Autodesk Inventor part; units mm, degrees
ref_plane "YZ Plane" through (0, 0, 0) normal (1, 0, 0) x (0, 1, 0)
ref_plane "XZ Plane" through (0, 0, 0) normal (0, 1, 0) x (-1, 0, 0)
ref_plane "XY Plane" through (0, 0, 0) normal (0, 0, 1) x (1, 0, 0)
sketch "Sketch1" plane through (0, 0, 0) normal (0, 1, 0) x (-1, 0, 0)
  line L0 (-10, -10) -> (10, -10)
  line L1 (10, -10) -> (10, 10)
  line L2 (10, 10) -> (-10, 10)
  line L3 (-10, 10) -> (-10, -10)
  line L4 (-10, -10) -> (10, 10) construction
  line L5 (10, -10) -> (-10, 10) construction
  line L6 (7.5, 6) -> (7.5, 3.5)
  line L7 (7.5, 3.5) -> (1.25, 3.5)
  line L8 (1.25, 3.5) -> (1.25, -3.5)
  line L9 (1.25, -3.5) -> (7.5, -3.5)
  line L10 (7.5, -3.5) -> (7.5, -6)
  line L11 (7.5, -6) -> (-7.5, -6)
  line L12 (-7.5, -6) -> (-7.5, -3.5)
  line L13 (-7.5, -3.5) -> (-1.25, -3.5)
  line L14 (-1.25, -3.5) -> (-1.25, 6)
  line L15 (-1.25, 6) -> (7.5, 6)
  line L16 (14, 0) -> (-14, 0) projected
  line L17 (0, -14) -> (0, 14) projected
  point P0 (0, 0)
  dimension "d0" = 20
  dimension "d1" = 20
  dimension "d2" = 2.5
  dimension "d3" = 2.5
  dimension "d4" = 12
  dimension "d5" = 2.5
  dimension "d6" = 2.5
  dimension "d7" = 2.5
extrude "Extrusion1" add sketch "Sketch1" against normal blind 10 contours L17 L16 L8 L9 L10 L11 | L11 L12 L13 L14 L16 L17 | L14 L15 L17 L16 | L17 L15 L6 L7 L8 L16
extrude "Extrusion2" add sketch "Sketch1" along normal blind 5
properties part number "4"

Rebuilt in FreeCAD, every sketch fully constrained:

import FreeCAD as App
import Part
import Sketcher
from FreeCAD import Vector

doc = App.newDocument("Part")
params = doc.addObject("Spreadsheet::Sheet", "Params")
for row, (alias, value) in enumerate([
    ("sketch1_height", "2.5 mm"),
    ("sketch1_width", "15 mm"),
    ("pad1_length", "10 mm"),
    ("sketch2_width", "20 mm"),
    ("pad2_length", "5 mm"),
], start=1):
    params.set(f"A{row}", alias)
    params.set(f"B{row}", "=" + value)
    params.setAlias(f"B{row}", alias)

body = doc.addObject("PartDesign::Body", "Body")

sketch1 = doc.addObject("Sketcher::SketchObject", "Sketch")
body.addObject(sketch1)
sketch1.AttachmentSupport = (doc.XZ_Plane, [""])
sketch1.MapMode = "FlatFace"
sketch1.addGeometry([
    Part.LineSegment(Vector(-1.2, -3.5, 0), Vector(-1.2, 3.5, 0)),
    Part.LineSegment(Vector(-1.2, 3.5, 0), Vector(-7.5, 3.5, 0)),
    Part.LineSegment(Vector(-7.5, 3.5, 0), Vector(-7.5, 6, 0)),
    Part.LineSegment(Vector(-7.5, 6, 0), Vector(1.2, 6, 0)),
    Part.LineSegment(Vector(1.2, 6, 0), Vector(1.2, -3.5, 0)),
    Part.LineSegment(Vector(1.2, -3.5, 0), Vector(7.5, -3.5, 0)),
    Part.LineSegment(Vector(7.5, -3.5, 0), Vector(7.5, -6, 0)),
    Part.LineSegment(Vector(7.5, -6, 0), Vector(-7.5, -6, 0)),
    Part.LineSegment(Vector(-7.5, -6, 0), Vector(-7.5, -3.5, 0)),
    Part.LineSegment(Vector(-7.5, -3.5, 0), Vector(-1.2, -3.5, 0)),
], False)
sketch1.addConstraint([
    Sketcher.Constraint("Coincident", 0, 2, 1, 1),
    Sketcher.Constraint("Coincident", 1, 2, 2, 1),
    Sketcher.Constraint("Coincident", 2, 2, 3, 1),
    Sketcher.Constraint("Coincident", 3, 2, 4, 1),
    Sketcher.Constraint("Coincident", 4, 2, 5, 1),
    Sketcher.Constraint("Coincident", 5, 2, 6, 1),
    Sketcher.Constraint("Coincident", 6, 2, 7, 1),
    Sketcher.Constraint("Coincident", 7, 2, 8, 1),
    Sketcher.Constraint("Coincident", 8, 2, 9, 1),
    Sketcher.Constraint("Coincident", 9, 2, 0, 1),
    Sketcher.Constraint("Vertical", 0),
    Sketcher.Constraint("Horizontal", 1),
    Sketcher.Constraint("Vertical", 2),
    Sketcher.Constraint("Horizontal", 3),
    Sketcher.Constraint("Vertical", 4),
    Sketcher.Constraint("Horizontal", 5),
    Sketcher.Constraint("Vertical", 6),
    Sketcher.Constraint("Horizontal", 7),
    Sketcher.Constraint("Vertical", 8),
    Sketcher.Constraint("Horizontal", 9),
    Sketcher.Constraint("Symmetric", 0, 2, 4, 2, -1, 1),
    Sketcher.Constraint("Symmetric", 2, 2, 6, 2, -1, 1),
    Sketcher.Constraint("Symmetric", 5, 2, 8, 2, -2),
    Sketcher.Constraint("DistanceY", 2, 1, 2, 2, 2.5),
    Sketcher.Constraint("DistanceY", 6, 2, 3, 2, 12.0),
    Sketcher.Constraint("DistanceX", 0, 2, 3, 2, 2.5),
    Sketcher.Constraint("DistanceX", 7, 2, 7, 1, 15.0),
])
sketch1.setExpression("Constraints[23]", "Params.sketch1_height")
sketch1.setExpression("Constraints[26]", "Params.sketch1_width")
pad1 = doc.addObject("PartDesign::Pad", "Pad")
body.addObject(pad1)
pad1.Profile = sketch1
pad1.setExpression("Length", "Params.pad1_length")

sketch2 = doc.addObject("Sketcher::SketchObject", "Sketch001")
body.addObject(sketch2)
sketch2.AttachmentSupport = (doc.XZ_Plane, [""])
sketch2.MapMode = "FlatFace"
sketch2.addGeometry([
    Part.LineSegment(Vector(10, -10, 0), Vector(-10, -10, 0)),
    Part.LineSegment(Vector(-10, -10, 0), Vector(-10, 10, 0)),
    Part.LineSegment(Vector(-10, 10, 0), Vector(10, 10, 0)),
    Part.LineSegment(Vector(10, 10, 0), Vector(10, -10, 0)),
], False)
sketch2.addConstraint([
    Sketcher.Constraint("Coincident", 0, 2, 1, 1),
    Sketcher.Constraint("Coincident", 1, 2, 2, 1),
    Sketcher.Constraint("Coincident", 2, 2, 3, 1),
    Sketcher.Constraint("Coincident", 3, 2, 0, 1),
    Sketcher.Constraint("Horizontal", 0),
    Sketcher.Constraint("Vertical", 1),
    Sketcher.Constraint("Horizontal", 2),
    Sketcher.Constraint("Vertical", 3),
    Sketcher.Constraint("Symmetric", 0, 2, 2, 2, -1, 1),
    Sketcher.Constraint("Equal", 2, 1),
    Sketcher.Constraint("DistanceX", 0, 2, 0, 1, 20.0),
])
sketch2.setExpression("Constraints[10]", "Params.sketch2_width")
pad2 = doc.addObject("PartDesign::Pad", "Pad001")
body.addObject(pad2)
pad2.Profile = sketch2
pad2.setExpression("Length", "Params.pad2_length")
pad2.Reversed = True

doc.recompute()
